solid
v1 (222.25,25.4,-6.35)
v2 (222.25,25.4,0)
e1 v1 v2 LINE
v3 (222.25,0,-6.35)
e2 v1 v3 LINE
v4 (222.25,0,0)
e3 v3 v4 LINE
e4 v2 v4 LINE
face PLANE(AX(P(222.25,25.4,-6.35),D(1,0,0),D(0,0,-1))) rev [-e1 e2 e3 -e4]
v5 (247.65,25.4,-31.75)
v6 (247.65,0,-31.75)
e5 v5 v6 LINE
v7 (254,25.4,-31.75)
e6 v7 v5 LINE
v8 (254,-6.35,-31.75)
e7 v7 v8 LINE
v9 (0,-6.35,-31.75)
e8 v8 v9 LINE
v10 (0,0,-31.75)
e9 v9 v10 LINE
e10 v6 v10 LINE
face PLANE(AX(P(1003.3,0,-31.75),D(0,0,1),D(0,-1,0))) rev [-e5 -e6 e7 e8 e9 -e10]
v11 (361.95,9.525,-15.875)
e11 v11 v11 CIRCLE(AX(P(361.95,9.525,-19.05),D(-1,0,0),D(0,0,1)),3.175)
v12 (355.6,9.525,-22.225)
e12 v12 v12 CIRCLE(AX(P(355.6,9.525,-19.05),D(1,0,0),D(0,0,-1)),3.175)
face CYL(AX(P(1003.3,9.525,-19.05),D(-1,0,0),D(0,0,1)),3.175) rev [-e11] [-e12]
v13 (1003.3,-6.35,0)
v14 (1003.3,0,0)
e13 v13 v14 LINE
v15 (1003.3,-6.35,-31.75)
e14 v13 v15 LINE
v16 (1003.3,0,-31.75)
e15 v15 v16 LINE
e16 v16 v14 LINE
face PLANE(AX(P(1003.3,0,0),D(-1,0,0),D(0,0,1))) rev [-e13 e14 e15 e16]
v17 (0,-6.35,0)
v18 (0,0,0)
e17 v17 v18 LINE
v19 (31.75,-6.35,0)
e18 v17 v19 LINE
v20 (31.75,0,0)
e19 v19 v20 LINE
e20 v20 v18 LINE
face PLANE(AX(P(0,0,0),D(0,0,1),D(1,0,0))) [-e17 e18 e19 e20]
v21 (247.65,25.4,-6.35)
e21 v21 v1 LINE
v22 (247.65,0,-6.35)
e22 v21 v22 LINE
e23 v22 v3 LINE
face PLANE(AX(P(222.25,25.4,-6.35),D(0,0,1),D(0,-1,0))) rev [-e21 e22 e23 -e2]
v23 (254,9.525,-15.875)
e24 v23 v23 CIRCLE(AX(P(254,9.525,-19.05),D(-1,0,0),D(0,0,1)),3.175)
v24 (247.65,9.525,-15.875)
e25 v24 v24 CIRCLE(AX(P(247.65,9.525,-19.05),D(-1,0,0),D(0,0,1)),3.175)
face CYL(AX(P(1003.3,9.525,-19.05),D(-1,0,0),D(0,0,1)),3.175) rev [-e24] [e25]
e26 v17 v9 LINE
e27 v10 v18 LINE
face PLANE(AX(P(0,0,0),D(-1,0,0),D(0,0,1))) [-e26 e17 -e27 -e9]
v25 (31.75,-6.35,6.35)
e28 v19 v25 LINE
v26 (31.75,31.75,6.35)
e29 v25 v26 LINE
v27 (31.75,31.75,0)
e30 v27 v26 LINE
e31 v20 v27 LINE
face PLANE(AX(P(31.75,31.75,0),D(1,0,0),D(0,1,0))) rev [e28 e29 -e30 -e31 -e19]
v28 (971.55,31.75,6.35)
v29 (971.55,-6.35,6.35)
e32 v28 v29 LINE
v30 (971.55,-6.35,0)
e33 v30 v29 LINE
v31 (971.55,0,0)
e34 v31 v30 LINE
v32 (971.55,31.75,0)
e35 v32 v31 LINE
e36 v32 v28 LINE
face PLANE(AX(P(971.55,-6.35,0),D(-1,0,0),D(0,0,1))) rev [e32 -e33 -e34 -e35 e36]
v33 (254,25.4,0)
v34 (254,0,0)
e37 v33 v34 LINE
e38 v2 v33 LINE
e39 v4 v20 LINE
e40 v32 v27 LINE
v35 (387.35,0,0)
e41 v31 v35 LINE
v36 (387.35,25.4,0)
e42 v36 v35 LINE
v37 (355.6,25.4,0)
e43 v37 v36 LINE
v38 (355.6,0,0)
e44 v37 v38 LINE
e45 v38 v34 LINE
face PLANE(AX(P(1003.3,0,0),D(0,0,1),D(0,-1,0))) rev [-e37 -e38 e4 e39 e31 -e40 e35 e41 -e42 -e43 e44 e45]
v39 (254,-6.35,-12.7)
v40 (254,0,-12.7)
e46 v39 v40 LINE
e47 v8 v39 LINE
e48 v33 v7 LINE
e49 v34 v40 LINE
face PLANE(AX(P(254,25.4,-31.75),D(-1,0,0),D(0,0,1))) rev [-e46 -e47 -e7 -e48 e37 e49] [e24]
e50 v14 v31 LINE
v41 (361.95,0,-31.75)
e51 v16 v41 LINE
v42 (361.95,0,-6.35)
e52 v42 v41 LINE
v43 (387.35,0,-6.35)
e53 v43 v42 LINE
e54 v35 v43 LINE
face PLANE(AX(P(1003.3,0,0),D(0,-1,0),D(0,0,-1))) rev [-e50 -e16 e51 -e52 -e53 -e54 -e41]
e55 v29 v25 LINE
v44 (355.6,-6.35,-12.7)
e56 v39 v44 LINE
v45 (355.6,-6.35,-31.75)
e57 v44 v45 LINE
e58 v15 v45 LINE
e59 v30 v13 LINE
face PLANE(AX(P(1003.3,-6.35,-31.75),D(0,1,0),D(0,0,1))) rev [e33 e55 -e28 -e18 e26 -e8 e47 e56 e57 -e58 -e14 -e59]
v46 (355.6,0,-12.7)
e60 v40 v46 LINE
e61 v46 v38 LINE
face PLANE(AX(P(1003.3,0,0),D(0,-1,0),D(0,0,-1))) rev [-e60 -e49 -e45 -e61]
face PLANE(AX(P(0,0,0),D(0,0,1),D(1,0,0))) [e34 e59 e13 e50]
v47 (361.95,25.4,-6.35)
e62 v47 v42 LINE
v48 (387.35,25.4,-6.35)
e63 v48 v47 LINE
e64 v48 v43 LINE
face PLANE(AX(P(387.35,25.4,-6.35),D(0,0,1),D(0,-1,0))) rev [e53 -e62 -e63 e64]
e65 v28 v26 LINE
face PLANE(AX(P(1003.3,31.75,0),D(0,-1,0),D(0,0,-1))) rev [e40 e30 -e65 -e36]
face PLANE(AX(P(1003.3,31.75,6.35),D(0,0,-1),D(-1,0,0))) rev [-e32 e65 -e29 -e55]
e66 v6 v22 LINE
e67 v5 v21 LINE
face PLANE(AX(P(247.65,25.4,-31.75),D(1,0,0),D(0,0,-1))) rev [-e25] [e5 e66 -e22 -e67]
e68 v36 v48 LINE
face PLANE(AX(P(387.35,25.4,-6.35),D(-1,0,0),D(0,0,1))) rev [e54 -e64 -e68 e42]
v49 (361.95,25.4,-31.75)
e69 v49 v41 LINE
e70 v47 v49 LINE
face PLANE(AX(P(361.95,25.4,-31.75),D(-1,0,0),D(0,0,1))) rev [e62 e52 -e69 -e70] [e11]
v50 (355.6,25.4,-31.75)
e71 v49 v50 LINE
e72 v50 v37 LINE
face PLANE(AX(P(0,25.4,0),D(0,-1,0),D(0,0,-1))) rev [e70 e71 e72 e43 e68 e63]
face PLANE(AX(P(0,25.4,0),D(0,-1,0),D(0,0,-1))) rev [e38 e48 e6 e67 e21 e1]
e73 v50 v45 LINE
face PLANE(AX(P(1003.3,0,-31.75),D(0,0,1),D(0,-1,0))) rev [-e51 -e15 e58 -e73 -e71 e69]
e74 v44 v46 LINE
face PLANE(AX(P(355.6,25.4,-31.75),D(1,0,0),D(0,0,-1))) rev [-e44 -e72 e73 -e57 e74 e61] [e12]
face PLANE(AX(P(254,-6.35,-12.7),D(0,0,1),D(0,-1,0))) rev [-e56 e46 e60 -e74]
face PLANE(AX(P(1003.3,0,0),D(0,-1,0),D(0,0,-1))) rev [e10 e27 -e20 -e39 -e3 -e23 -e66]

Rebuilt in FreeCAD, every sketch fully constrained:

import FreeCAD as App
import Part
import Sketcher
Q = App.Units.Quantity

doc = App.newDocument("Part")
params = doc.addObject("Spreadsheet::Sheet", "Params")
for row, (alias, value) in enumerate([
    ("sketch1_width", "1.5 in"),
    ("sketch1_width2", "1.25 in"),
    ("pad1_length", "39.5 in"),
    ("sketch2_width", "1 in"),
    ("sketch2_width2", "0.25 in"),
    ("pad2_length", "1 in"),
    ("sketch3_width", "4 in"),
    ("sketch3_height", "0.75 in"),
    ("sketch4_diameter", "0.25 in"),
    ("sketch5_height", "1.5 in"),
    ("sketch5_width", "1.25 in"),
    ("pocket3_length", "0.25 in"),
], start=1):
    params.set(f"A{row}", alias)
    params.set(f"B{row}", "=" + value)
    params.setAlias(f"B{row}", alias)

body = doc.addObject("PartDesign::Body", "Body")

sketch1 = body.newObject("Sketcher::SketchObject", "Sketch")
sketch1.AttachmentSupport = (doc.getObject("YZ_Plane"), [""])
sketch1.MapMode = "FlatFace"
sketch1.addGeometry([
    Part.LineSegment(App.Vector(0, 0, 0), App.Vector(32, 0, 0)),
    Part.LineSegment(App.Vector(32, 0, 0), App.Vector(32, 6, 0)),
    Part.LineSegment(App.Vector(32, 6, 0), App.Vector(-6, 6, 0)),
    Part.LineSegment(App.Vector(-6, 6, 0), App.Vector(-6, -32, 0)),
    Part.LineSegment(App.Vector(-6, -32, 0), App.Vector(0, -32, 0)),
    Part.LineSegment(App.Vector(0, -32, 0), App.Vector(0, 0, 0)),
], False)
sketch1.addConstraint([
    Sketcher.Constraint("Coincident", 0, 2, 1, 1),
    Sketcher.Constraint("Coincident", 1, 2, 2, 1),
    Sketcher.Constraint("Coincident", 2, 2, 3, 1),
    Sketcher.Constraint("Coincident", 3, 2, 4, 1),
    Sketcher.Constraint("Coincident", 4, 2, 5, 1),
    Sketcher.Constraint("Coincident", 5, 2, 0, 1),
    Sketcher.Constraint("Horizontal", 0),
    Sketcher.Constraint("Vertical", 1),
    Sketcher.Constraint("Horizontal", 2),
    Sketcher.Constraint("Vertical", 3),
    Sketcher.Constraint("Horizontal", 4),
    Sketcher.Constraint("Vertical", 5),
    Sketcher.Constraint("Coincident", 5, 2, -1, 1),
    Sketcher.Constraint("Equal", 4, 1),
    Sketcher.Constraint("Equal", 2, 3),
    Sketcher.Constraint("DistanceX", 2, 2, 2, 1, Q("1.5 in")),
    Sketcher.Constraint("DistanceX", 0, 1, 0, 2, Q("1.25 in")),
])
sketch1.setExpression("Constraints[15]", "Params.sketch1_width")
sketch1.setExpression("Constraints[16]", "Params.sketch1_width2")
pad1 = body.newObject("PartDesign::Pad", "Pad")
pad1.Profile = sketch1
pad1.setExpression("Length", "Params.pad1_length")

sketch2 = body.newObject("Sketcher::SketchObject", "Sketch001")
sketch2.AttachmentSupport = (doc.getObject("XZ_Plane"), [""])
sketch2.MapMode = "FlatFace"
sketch2.addGeometry([
    Part.LineSegment(App.Vector(254, -32, 0), App.Vector(248, -32, 0)),
    Part.LineSegment(App.Vector(248, -32, 0), App.Vector(248, -6, 0)),
    Part.LineSegment(App.Vector(248, -6, 0), App.Vector(222, -6, 0)),
    Part.LineSegment(App.Vector(222, -6, 0), App.Vector(222, 0, 0)),
    Part.LineSegment(App.Vector(222, 0, 0), App.Vector(254, 0, 0)),
    Part.LineSegment(App.Vector(254, 0, 0), App.Vector(254, -32, 0)),
    Part.LineSegment(App.Vector(387, 0, 0), App.Vector(387, -6, 0)),
    Part.LineSegment(App.Vector(387, -6, 0), App.Vector(362, -6, 0)),
    Part.LineSegment(App.Vector(362, -6, 0), App.Vector(362, -32, 0)),
    Part.LineSegment(App.Vector(362, -32, 0), App.Vector(356, -32, 0)),
    Part.LineSegment(App.Vector(356, -32, 0), App.Vector(356, 0, 0)),
    Part.LineSegment(App.Vector(356, 0, 0), App.Vector(387, 0, 0)),
], False)
sketch2.addConstraint([
    Sketcher.Constraint("Coincident", 0, 2, 1, 1),
    Sketcher.Constraint("Coincident", 1, 2, 2, 1),
    Sketcher.Constraint("Coincident", 2, 2, 3, 1),
    Sketcher.Constraint("Coincident", 3, 2, 4, 1),
    Sketcher.Constraint("Coincident", 4, 2, 5, 1),
    Sketcher.Constraint("Coincident", 5, 2, 0, 1),
    Sketcher.Constraint("Coincident", 6, 2, 7, 1),
    Sketcher.Constraint("Coincident", 7, 2, 8, 1),
    Sketcher.Constraint("Coincident", 8, 2, 9, 1),
    Sketcher.Constraint("Coincident", 9, 2, 10, 1),
    Sketcher.Constraint("Coincident", 10, 2, 11, 1),
    Sketcher.Constraint("Coincident", 11, 2, 6, 1),
    Sketcher.Constraint("Horizontal", 0),
    Sketcher.Constraint("Vertical", 1),
    Sketcher.Constraint("Horizontal", 2),
    Sketcher.Constraint("Vertical", 3),
    Sketcher.Constraint("Horizontal", 4),
    Sketcher.Constraint("Vertical", 5),
    Sketcher.Constraint("Vertical", 6),
    Sketcher.Constraint("Horizontal", 7),
    Sketcher.Constraint("Vertical", 8),
    Sketcher.Constraint("Horizontal", 9),
    Sketcher.Constraint("Vertical", 10),
    Sketcher.Constraint("Horizontal", 11),
    Sketcher.Constraint("PointOnObject", 3, 2, -1),
    Sketcher.Constraint("PointOnObject", 10, 2, -1),
    Sketcher.Constraint("Horizontal", 2, 2, 6, 2),
    Sketcher.Constraint("Horizontal", 5, 2, 8, 2),
    Sketcher.Constraint("Equal", 2, 7),
    Sketcher.Constraint("Equal", 0, 9),
    Sketcher.Constraint("Equal", 7, 1),
    Sketcher.Constraint("Equal", 9, 3),
    Sketcher.Constraint("DistanceX", 2, 2, 2, 1, Q("1 in")),
    Sketcher.Constraint("DistanceX", -1, 1, 4, 2, Q("10 in")),
    Sketcher.Constraint("DistanceX", -1, 1, 9, 2, Q("14 in")),
    Sketcher.Constraint("DistanceX", 0, 2, 0, 1, Q("0.25 in")),
])
sketch2.setExpression("Constraints[32]", "Params.sketch2_width")
sketch2.setExpression("Constraints[35]", "Params.sketch2_width2")
pad2 = body.newObject("PartDesign::Pad", "Pad001")
pad2.Profile = sketch2
pad2.setExpression("Length", "Params.pad2_length")
pad2.Reversed = True

sketch3 = body.newObject("Sketcher::SketchObject", "Sketch002")
sketch3.AttachmentSupport = (doc.getObject("XZ_Plane"), [""])
sketch3.MapMode = "FlatFace"
sketch3.addGeometry([
    Part.LineSegment(App.Vector(254, -32, 0), App.Vector(254, -13, 0)),
    Part.LineSegment(App.Vector(254, -13, 0), App.Vector(356, -13, 0)),
    Part.LineSegment(App.Vector(356, -13, 0), App.Vector(356, -32, 0)),
    Part.LineSegment(App.Vector(356, -32, 0), App.Vector(254, -32, 0)),
], False)
sketch3.addConstraint([
    Sketcher.Constraint("Coincident", 0, 2, 1, 1),
    Sketcher.Constraint("Coincident", 1, 2, 2, 1),
    Sketcher.Constraint("Coincident", 2, 2, 3, 1),
    Sketcher.Constraint("Coincident", 3, 2, 0, 1),
    Sketcher.Constraint("Vertical", 0),
    Sketcher.Constraint("Horizontal", 1),
    Sketcher.Constraint("Vertical", 2),
    Sketcher.Constraint("Horizontal", 3),
    Sketcher.Constraint("DistanceX", 1, 1, 1, 2, Q("4 in")),
    Sketcher.Constraint("DistanceX", -1, 1, 0, 2, Q("10 in")),
    Sketcher.Constraint("DistanceY", 0, 1, 0, 2, Q("0.75 in")),
    Sketcher.Constraint("DistanceY", 0, 2, -1, 1, Q("0.5 in")),
])
sketch3.setExpression("Constraints[8]", "Params.sketch3_width")
sketch3.setExpression("Constraints[10]", "Params.sketch3_height")
pocket1 = body.newObject("PartDesign::Pocket", "Pocket")
pocket1.Profile = sketch3
pocket1.Type = "ThroughAll"
pocket1.Reversed = True

sketch4 = body.newObject("Sketcher::SketchObject", "Sketch003")
sketch4.AttachmentSupport = (doc.getObject("YZ_Plane"), [""])
sketch4.MapMode = "FlatFace"
sketch4.AttachmentOffset = App.Placement(App.Vector(0, 0, 9.75 * 25.4), App.Rotation())
sketch4.addGeometry(Part.Circle(App.Vector(9.5, -19.1, 0), App.Vector(0, 0, 1), 3.2), False)
sketch4.addConstraint([
    Sketcher.Constraint("Diameter", 0, Q("0.25 in")),
    Sketcher.Constraint("DistanceY", 0, 3, -1, 1, Q("0.75 in")),
    Sketcher.Constraint("DistanceX", -1, 1, 0, 3, Q("0.375 in")),
])
sketch4.setExpression("Constraints[0]", "Params.sketch4_diameter")
pocket2 = body.newObject("PartDesign::Pocket", "Pocket001")
pocket2.Profile = sketch4
pocket2.Type = "ThroughAll"
pocket2.Reversed = True

sketch5 = body.newObject("Sketcher::SketchObject", "Sketch004")
sketch5.AttachmentSupport = (doc.getObject("XY_Plane"), [""])
sketch5.MapMode = "FlatFace"
sketch5.AttachmentOffset = App.Placement(App.Vector(0, 0, 0.25 * 25.4), App.Rotation())
sketch5.addGeometry([
    Part.LineSegment(App.Vector(0, 32, 0), App.Vector(0, -6, 0)),
    Part.LineSegment(App.Vector(0, -6, 0), App.Vector(32, -6, 0)),
    Part.LineSegment(App.Vector(32, -6, 0), App.Vector(32, 32, 0)),
    Part.LineSegment(App.Vector(32, 32, 0), App.Vector(0, 32, 0)),
    Part.LineSegment(App.Vector(972, 32, 0), App.Vector(972, -6, 0)),
    Part.LineSegment(App.Vector(972, -6, 0), App.Vector(1003, -6, 0)),
    Part.LineSegment(App.Vector(1003, -6, 0), App.Vector(1003, 32, 0)),
    Part.LineSegment(App.Vector(1003, 32, 0), App.Vector(972, 32, 0)),
], False)
sketch5.addConstraint([
    Sketcher.Constraint("Coincident", 0, 2, 1, 1),
    Sketcher.Constraint("Coincident", 1, 2, 2, 1),
    Sketcher.Constraint("Coincident", 2, 2, 3, 1),
    Sketcher.Constraint("Coincident", 3, 2, 0, 1),
    Sketcher.Constraint("Coincident", 4, 2, 5, 1),
    Sketcher.Constraint("Coincident", 5, 2, 6, 1),
    Sketcher.Constraint("Coincident", 6, 2, 7, 1),
    Sketcher.Constraint("Coincident", 7, 2, 4, 1),
    Sketcher.Constraint("Vertical", 0),
    Sketcher.Constraint("Horizontal", 1),
    Sketcher.Constraint("Vertical", 2),
    Sketcher.Constraint("Horizontal", 3),
    Sketcher.Constraint("Vertical", 4),
    Sketcher.Constraint("Horizontal", 5),
    Sketcher.Constraint("Vertical", 6),
    Sketcher.Constraint("Horizontal", 7),
    Sketcher.Constraint("PointOnObject", 0, 2, -2),
    Sketcher.Constraint("Horizontal", 1, 2, 4, 2),
    Sketcher.Constraint("Horizontal", 3, 2, 6, 2),
    Sketcher.Constraint("Equal", 3, 5),
    Sketcher.Constraint("DistanceY", 0, 2, 0, 1, Q("1.5 in")),
    Sketcher.Constraint("DistanceX", 1, 2, 4, 2, Q("37 in")),
    Sketcher.Constraint("DistanceX", 1, 1, 1, 2, Q("1.25 in")),
    Sketcher.Constraint("DistanceY", 0, 2, -1, 1, Q("0.25 in")),
])
sketch5.setExpression("Constraints[20]", "Params.sketch5_height")
sketch5.setExpression("Constraints[22]", "Params.sketch5_width")
pocket3 = body.newObject("PartDesign::Pocket", "Pocket002")
pocket3.Profile = sketch5
pocket3.setExpression("Length", "Params.pocket3_length")

doc.recompute()
